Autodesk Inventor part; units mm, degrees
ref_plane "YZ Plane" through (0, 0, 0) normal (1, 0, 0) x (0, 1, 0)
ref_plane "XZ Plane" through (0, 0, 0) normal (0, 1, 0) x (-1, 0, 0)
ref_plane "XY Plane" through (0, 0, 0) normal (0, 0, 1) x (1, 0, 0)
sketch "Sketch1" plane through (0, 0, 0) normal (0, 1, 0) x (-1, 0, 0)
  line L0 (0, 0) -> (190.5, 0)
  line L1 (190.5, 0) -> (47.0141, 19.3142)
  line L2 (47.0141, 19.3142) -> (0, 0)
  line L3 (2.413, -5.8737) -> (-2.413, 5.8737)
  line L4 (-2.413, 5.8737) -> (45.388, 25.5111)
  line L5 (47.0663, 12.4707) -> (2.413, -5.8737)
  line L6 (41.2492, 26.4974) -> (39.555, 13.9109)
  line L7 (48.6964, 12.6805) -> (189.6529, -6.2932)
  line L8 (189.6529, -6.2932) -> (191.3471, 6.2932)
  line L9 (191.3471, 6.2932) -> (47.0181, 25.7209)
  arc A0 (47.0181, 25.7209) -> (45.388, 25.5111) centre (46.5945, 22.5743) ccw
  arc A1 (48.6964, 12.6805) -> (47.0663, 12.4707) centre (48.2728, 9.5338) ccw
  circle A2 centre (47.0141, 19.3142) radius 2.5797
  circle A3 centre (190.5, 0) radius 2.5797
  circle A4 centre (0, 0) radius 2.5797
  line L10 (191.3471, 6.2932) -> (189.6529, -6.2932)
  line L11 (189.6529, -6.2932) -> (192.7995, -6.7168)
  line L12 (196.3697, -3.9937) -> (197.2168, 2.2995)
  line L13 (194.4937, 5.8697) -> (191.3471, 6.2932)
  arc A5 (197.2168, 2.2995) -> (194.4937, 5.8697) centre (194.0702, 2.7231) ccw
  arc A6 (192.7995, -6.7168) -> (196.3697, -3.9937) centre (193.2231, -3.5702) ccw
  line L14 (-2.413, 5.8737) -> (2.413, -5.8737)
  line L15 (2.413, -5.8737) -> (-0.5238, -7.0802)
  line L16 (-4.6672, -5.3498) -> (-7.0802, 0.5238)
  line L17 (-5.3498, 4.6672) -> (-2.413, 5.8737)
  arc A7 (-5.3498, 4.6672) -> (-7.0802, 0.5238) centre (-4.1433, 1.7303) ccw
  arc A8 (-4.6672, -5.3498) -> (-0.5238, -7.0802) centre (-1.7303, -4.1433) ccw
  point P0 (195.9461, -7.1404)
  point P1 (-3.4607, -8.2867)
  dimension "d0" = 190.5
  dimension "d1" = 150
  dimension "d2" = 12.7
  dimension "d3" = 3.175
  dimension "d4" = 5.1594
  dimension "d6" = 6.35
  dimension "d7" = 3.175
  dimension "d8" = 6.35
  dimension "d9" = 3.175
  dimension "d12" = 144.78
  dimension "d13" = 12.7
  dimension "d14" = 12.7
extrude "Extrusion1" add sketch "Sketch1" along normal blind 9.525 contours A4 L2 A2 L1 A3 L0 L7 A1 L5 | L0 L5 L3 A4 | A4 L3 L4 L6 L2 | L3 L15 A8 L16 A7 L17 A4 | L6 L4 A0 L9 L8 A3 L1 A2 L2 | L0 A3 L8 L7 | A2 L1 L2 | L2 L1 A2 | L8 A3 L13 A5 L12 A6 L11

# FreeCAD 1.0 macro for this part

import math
import FreeCAD as App
import Part
import Sketcher

V = App.Vector
Q = App.Units.Quantity

doc = App.newDocument("Part")
params = doc.addObject("Spreadsheet::Sheet", "Params")
for row, (alias, value) in enumerate([
    ("sketch1_diameter", "0.203126 in"),
    ("sketch1_radius", "0.125 in"),
    ("sketch1_length", "0.25 in"),
    ("sketch1_length2", "0.125 in"),
    ("pad1_length", "0.375 in"),
], start=1):
    params.set(f"A{row}", alias)
    params.set(f"B{row}", "=" + value)
    params.setAlias(f"B{row}", alias)

body = doc.addObject("PartDesign::Body", "Body")

sketch1 = body.newObject("Sketcher::SketchObject", "Sketch")
sketch1.AttachmentSupport = (doc.getObject("XZ_Plane"), [""])
sketch1.MapMode = "FlatFace"
sketch1.addGeometry([
    Part.LineSegment(V(-48.7, 12.7, 0), V(-189.7, -6.3, 0)),
    Part.LineSegment(V(-189.7, -6.3, 0), V(-192.8, -6.7, 0)),
    Part.ArcOfCircle(Part.Circle(V(-193.2, -3.6, 0), V(0, 0, 1), 3.2), math.radians(-172), math.radians(-82)),
    Part.LineSegment(V(-196.4, -4, 0), V(-197.2, 2.3, 0)),
    Part.ArcOfCircle(Part.Circle(V(-194.1, 2.7, 0), V(0, 0, 1), 3.2), math.radians(98), math.radians(188)),
    Part.LineSegment(V(-194.5, 5.9, 0), V(-191.3, 6.3, 0)),
    Part.LineSegment(V(-191.3, 6.3, 0), V(-47, 25.7, 0)),
    Part.ArcOfCircle(Part.Circle(V(-46.6, 22.6, 0), V(0, 0, 1), 3.2), math.radians(68), math.radians(98)),
    Part.LineSegment(V(-45.4, 25.5, 0), V(2.4, 5.9, 0)),
    Part.LineSegment(V(2.4, 5.9, 0), V(5.3, 4.7, 0)),
    Part.ArcOfCircle(Part.Circle(V(4.1, 1.7, 0), V(0, 0, 1), 3.2), math.radians(-22), math.radians(68)),
    Part.LineSegment(V(7.1, 0.5, 0), V(4.7, -5.3, 0)),
    Part.ArcOfCircle(Part.Circle(V(1.7, -4.1, 0), V(0, 0, 1), 3.2), math.radians(-112), math.radians(-22)),
    Part.LineSegment(V(0.5, -7.1, 0), V(-2.4, -5.9, 0)),
    Part.LineSegment(V(-2.4, -5.9, 0), V(-47.1, 12.5, 0)),
    Part.ArcOfCircle(Part.Circle(V(-48.3, 9.5, 0), V(0, 0, 1), 3.2), math.radians(68), math.radians(98)),
    Part.Circle(V(0, 0, 0), V(0, 0, 1), 2.6),
    Part.Circle(V(-190.5, 0, 0), V(0, 0, 1), 2.6),
], False)
sketch1.addConstraint([
    Sketcher.Constraint("Coincident", 0, 2, 1, 1),
    Sketcher.Constraint("Tangent", 1, 2, 2, 2),
    Sketcher.Constraint("Tangent", 2, 1, 3, 1),
    Sketcher.Constraint("Tangent", 3, 2, 4, 2),
    Sketcher.Constraint("Tangent", 4, 1, 5, 1),
    Sketcher.Constraint("Coincident", 5, 2, 6, 1),
    Sketcher.Constraint("Tangent", 6, 2, 7, 2),
    Sketcher.Constraint("Tangent", 7, 1, 8, 1),
    Sketcher.Constraint("Coincident", 8, 2, 9, 1),
    Sketcher.Constraint("Tangent", 9, 2, 10, 2),
    Sketcher.Constraint("Tangent", 10, 1, 11, 1),
    Sketcher.Constraint("Tangent", 11, 2, 12, 2),
    Sketcher.Constraint("Tangent", 12, 1, 13, 1),
    Sketcher.Constraint("Coincident", 13, 2, 14, 1),
    Sketcher.Constraint("Tangent", 14, 2, 15, 1),
    Sketcher.Constraint("Tangent", 15, 2, 0, 1),
    Sketcher.Constraint("Coincident", 16, 3, -1, 1),
    Sketcher.Constraint("Equal", 2, 4),
    Sketcher.Constraint("Equal", 4, 7),
    Sketcher.Constraint("Equal", 7, 10),
    Sketcher.Constraint("Equal", 10, 12),
    Sketcher.Constraint("Equal", 12, 15),
    Sketcher.Constraint("Equal", 16, 17),
    Sketcher.Constraint("Symmetric", 8, 2, 13, 2, -1, 1),
    Sketcher.Constraint("PointOnObject", 17, 3, -1),
    Sketcher.Constraint("Parallel", 0, 1),
    Sketcher.Constraint("Perpendicular", 1, 3),
    Sketcher.Constraint("Perpendicular", 3, 5),
    Sketcher.Constraint("Parallel", 5, 6),
    Sketcher.Constraint("Parallel", 8, 9),
    Sketcher.Constraint("Perpendicular", 9, 11),
    Sketcher.Constraint("Perpendicular", 11, 13),
    Sketcher.Constraint("Parallel", 13, 14),
    Sketcher.Constraint("Equal", 1, 5),
    Sketcher.Constraint("Equal", 5, 9),
    Sketcher.Constraint("Equal", 3, 11),
    Sketcher.Constraint("Equal", 9, 13),
    Sketcher.Constraint("Diameter", 16, Q("0.203126 in")),
    Sketcher.Constraint("Radius", 2, Q("0.125 in")),
    Sketcher.Constraint("DistanceX", 17, 3, -1, 1, Q("7.5 in")),
    Sketcher.Constraint("Distance", 3, Q("0.25 in")),
    Sketcher.Constraint("Distance", 1, Q("0.125 in")),
    Sketcher.Constraint("DistanceX", -1, 1, 8, 2, Q("0.095 in")),
    Sketcher.Constraint("DistanceX", 14, 2, -1, 1, Q("1.853 in")),
    Sketcher.Constraint("Distance", 6, Q("5.7335 in")),
    Sketcher.Constraint("DistanceX", 2, 3, -1, 1, Q("7.6072 in")),
])
sketch1.setExpression("Constraints[37]", "Params.sketch1_diameter")
sketch1.setExpression("Constraints[38]", "Params.sketch1_radius")
sketch1.setExpression("Constraints[40]", "Params.sketch1_length")
sketch1.setExpression("Constraints[41]", "Params.sketch1_length2")
pad1 = body.newObject("PartDesign::Pad", "Pad")
pad1.Profile = sketch1
pad1.setExpression("Length", "Params.pad1_length")
pad1.Reversed = True

doc.recompute()
